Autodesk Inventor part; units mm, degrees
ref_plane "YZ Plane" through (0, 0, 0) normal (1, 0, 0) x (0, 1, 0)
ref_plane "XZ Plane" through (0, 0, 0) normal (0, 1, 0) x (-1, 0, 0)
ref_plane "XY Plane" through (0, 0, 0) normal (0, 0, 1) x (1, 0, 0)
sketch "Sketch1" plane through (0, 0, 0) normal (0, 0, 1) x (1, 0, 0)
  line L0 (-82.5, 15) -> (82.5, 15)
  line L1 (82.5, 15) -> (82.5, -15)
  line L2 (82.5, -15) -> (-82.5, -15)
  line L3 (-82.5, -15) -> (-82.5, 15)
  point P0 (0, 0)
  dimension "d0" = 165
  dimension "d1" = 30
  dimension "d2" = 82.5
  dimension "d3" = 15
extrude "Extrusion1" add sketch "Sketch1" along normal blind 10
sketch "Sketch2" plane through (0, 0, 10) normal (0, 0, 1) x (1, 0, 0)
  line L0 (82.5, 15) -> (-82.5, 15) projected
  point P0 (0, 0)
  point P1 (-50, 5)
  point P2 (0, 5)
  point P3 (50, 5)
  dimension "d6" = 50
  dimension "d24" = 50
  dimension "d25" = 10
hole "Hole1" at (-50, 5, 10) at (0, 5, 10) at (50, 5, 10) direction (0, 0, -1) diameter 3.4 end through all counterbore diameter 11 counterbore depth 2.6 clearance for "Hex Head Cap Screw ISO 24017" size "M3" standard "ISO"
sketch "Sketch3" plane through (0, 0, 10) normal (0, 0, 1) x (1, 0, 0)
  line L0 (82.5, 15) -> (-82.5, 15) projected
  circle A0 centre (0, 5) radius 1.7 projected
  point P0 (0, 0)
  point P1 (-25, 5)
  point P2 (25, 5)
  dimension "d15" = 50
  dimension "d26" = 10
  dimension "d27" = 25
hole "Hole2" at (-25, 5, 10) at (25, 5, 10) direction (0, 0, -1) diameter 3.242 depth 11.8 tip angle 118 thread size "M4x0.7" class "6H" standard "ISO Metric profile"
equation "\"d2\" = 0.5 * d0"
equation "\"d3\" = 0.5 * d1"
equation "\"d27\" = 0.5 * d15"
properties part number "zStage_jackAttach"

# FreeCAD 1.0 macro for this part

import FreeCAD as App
import Part
import Sketcher

doc = App.newDocument("Part")
body = doc.addObject("PartDesign::Body", "Body")

sketch1 = body.newObject("Sketcher::SketchObject", "Sketch")
sketch1.AttachmentSupport = (doc.getObject("XY_Plane"), [""])
sketch1.MapMode = "FlatFace"
sketch1.addGeometry([
    Part.LineSegment(App.Vector(82, 15, 0), App.Vector(-82, 15, 0)),
    Part.LineSegment(App.Vector(-82, 15, 0), App.Vector(-82, -15, 0)),
    Part.LineSegment(App.Vector(-82, -15, 0), App.Vector(82, -15, 0)),
    Part.LineSegment(App.Vector(82, -15, 0), App.Vector(82, 15, 0)),
], False)
sketch1.addConstraint([
    Sketcher.Constraint("Coincident", 0, 2, 1, 1),
    Sketcher.Constraint("Coincident", 1, 2, 2, 1),
    Sketcher.Constraint("Coincident", 2, 2, 3, 1),
    Sketcher.Constraint("Coincident", 3, 2, 0, 1),
    Sketcher.Constraint("Horizontal", 0),
    Sketcher.Constraint("Vertical", 1),
    Sketcher.Constraint("Horizontal", 2),
    Sketcher.Constraint("Vertical", 3),
    Sketcher.Constraint("Symmetric", 0, 2, 2, 2, -1, 1),
    Sketcher.Constraint("DistanceX", 0, 2, 0, 1, 165.0),
    Sketcher.Constraint("DistanceY", 1, 2, 1, 1, 30.0),
])
pad1 = body.newObject("PartDesign::Pad", "Pad")
pad1.Profile = sketch1
pad1.Length = 10

sketch2 = body.newObject("Sketcher::SketchObject", "Sketch001")
sketch2.AttachmentSupport = (doc.getObject("XY_Plane"), [""])
sketch2.MapMode = "FlatFace"
sketch2.AttachmentOffset = App.Placement(App.Vector(0, 0, 10), App.Rotation())
sketch2.addGeometry([
    Part.Circle(App.Vector(-50, 5, 0), App.Vector(0, 0, 1), 1.7),
    Part.Circle(App.Vector(0, 5, 0), App.Vector(0, 0, 1), 1.7),
    Part.Circle(App.Vector(50, 5, 0), App.Vector(0, 0, 1), 1.7),
], False)
sketch2.addConstraint([
    Sketcher.Constraint("Equal", 0, 1),
    Sketcher.Constraint("Equal", 1, 2),
    Sketcher.Constraint("Symmetric", 0, 3, 2, 3, -2),
    Sketcher.Constraint("PointOnObject", 1, 3, -2),
    Sketcher.Constraint("Horizontal", 0, 3, 1, 3),
    Sketcher.Constraint("Diameter", 0, 3.4),
    Sketcher.Constraint("DistanceX", 0, 3, -1, 1, 50.0),
    Sketcher.Constraint("DistanceY", -1, 1, 0, 3, 5.0),
])
doc.recompute()
hole = body.newObject("PartDesign::Hole", "Hole")
hole.Profile = sketch2
hole.ThreadType = "None"
hole.Diameter = 3.4
hole.DepthType = "ThroughAll"
hole.HoleCutType = "Counterbore"
hole.HoleCutDiameter = 11
hole.HoleCutDepth = 2.6

sketch3 = body.newObject("Sketcher::SketchObject", "Sketch002")
sketch3.AttachmentSupport = (doc.getObject("XY_Plane"), [""])
sketch3.MapMode = "FlatFace"
sketch3.AttachmentOffset = App.Placement(App.Vector(0, 0, 10), App.Rotation())
sketch3.addGeometry([
    Part.Circle(App.Vector(-25, 5, 0), App.Vector(0, 0, 1), 1.6),
    Part.Circle(App.Vector(25, 5, 0), App.Vector(0, 0, 1), 1.6),
], False)
sketch3.addConstraint([
    Sketcher.Constraint("Equal", 0, 1),
    Sketcher.Constraint("Symmetric", 0, 3, 1, 3, -2),
    Sketcher.Constraint("Diameter", 0, 3.242),
    Sketcher.Constraint("DistanceX", 0, 3, -1, 1, 25.0),
    Sketcher.Constraint("DistanceY", -1, 1, 0, 3, 5.0),
])
doc.recompute()
hole2 = body.newObject("PartDesign::Hole", "Hole001")
hole2.Profile = sketch3
hole2.ThreadType = "None"
hole2.Diameter = 3.242
hole2.DepthType = "Dimension"
hole2.Depth = 11.8
hole2.DrillPoint = "Angled"
hole2.DrillPointAngle = 118

doc.recompute()
